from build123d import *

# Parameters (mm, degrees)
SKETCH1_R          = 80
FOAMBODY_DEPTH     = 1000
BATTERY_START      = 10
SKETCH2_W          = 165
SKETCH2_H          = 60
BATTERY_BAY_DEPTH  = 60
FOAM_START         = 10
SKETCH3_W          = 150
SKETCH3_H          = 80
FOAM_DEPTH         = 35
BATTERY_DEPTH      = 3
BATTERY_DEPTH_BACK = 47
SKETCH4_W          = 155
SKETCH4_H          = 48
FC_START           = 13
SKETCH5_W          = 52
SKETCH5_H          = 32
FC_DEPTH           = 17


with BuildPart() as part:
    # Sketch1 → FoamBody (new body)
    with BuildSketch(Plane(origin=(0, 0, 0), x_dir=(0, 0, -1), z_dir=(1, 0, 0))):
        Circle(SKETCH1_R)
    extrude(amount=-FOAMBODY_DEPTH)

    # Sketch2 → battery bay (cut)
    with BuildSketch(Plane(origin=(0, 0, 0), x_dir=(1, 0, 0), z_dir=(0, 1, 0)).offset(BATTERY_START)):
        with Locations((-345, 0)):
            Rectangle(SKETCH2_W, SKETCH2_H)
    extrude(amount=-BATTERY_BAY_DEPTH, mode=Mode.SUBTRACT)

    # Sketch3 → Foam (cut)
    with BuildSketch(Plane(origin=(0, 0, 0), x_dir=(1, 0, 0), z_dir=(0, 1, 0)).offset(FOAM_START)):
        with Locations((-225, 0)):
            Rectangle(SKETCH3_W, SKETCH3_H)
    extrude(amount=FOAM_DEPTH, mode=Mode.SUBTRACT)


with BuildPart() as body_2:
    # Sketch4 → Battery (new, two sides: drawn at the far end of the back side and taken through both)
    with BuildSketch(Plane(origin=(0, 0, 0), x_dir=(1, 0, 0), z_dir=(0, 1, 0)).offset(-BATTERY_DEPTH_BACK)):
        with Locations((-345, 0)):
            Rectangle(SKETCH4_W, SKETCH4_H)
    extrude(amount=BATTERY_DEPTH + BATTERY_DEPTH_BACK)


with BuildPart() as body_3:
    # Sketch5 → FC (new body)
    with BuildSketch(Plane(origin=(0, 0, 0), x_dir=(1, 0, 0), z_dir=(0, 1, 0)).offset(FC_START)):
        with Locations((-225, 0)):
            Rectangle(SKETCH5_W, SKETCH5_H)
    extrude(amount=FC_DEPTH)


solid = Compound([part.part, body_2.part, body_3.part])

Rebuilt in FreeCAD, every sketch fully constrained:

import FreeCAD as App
import Part
import Sketcher

V = App.Vector
Q = App.Units.Quantity

doc = App.newDocument("Part")
body = doc.addObject("PartDesign::Body", "Body")

# Sketch on YZ plane
sketch1 = body.newObject("Sketcher::SketchObject", "Sketch")
sketch1.AttachmentSupport = (doc.getObject("YZ_Plane"), [""])
sketch1.MapMode = "FlatFace"
sketch1.addGeometry(Part.Circle(V(0, 0, 0), V(0, 0, 1), 80), False)
sketch1.addConstraint(Sketcher.Constraint("Coincident", 0, 3, -1, 1))
sketch1.addConstraint(Sketcher.Constraint("Diameter", 0, Q("160 mm")))
pad1 = body.newObject("PartDesign::Pad", "Pad")
pad1.Profile = sketch1
pad1.Length = 1000
pad1.Reversed = True

# Sketch on XZ plane
sketch2 = body.newObject("Sketcher::SketchObject", "Sketch001")
sketch2.AttachmentSupport = (doc.getObject("XZ_Plane"), [""])
sketch2.MapMode = "FlatFace"
sketch2.AttachmentOffset = App.Placement(V(0, 0, -10), App.Rotation())
sketch2.addGeometry(Part.LineSegment(V(-427.5, -30, 0), V(-427.5, 30, 0)), False)
sketch2.addGeometry(Part.LineSegment(V(-427.5, 30, 0), V(-262.5, 30, 0)), False)
sketch2.addGeometry(Part.LineSegment(V(-262.5, 30, 0), V(-262.5, -30, 0)), False)
sketch2.addGeometry(Part.LineSegment(V(-262.5, -30, 0), V(-427.5, -30, 0)), False)
sketch2.addConstraint(Sketcher.Constraint("Coincident", 0, 2, 1, 1))
sketch2.addConstraint(Sketcher.Constraint("Coincident", 1, 2, 2, 1))
sketch2.addConstraint(Sketcher.Constraint("Coincident", 2, 2, 3, 1))
sketch2.addConstraint(Sketcher.Constraint("Coincident", 3, 2, 0, 1))
sketch2.addConstraint(Sketcher.Constraint("Vertical", 0))
sketch2.addConstraint(Sketcher.Constraint("Horizontal", 1))
sketch2.addConstraint(Sketcher.Constraint("Vertical", 2))
sketch2.addConstraint(Sketcher.Constraint("Horizontal", 3))
sketch2.addConstraint(Sketcher.Constraint("DistanceX", 1, 1, 1, 2, Q("165 mm")))
sketch2.addConstraint(Sketcher.Constraint("DistanceY", 0, 1, 0, 2, Q("60 mm")))
sketch2.addConstraint(Sketcher.Constraint("DistanceY", -1, 1, 0, 2, Q("30 mm")))
sketch2.addConstraint(Sketcher.Constraint("DistanceX", 0, 2, -1, 1, Q("427.5 mm")))
pocket1 = body.newObject("PartDesign::Pocket", "Pocket")
pocket1.Profile = sketch2
pocket1.Length = 60
pocket1.Reversed = True

# Sketch on XZ plane
sketch3 = body.newObject("Sketcher::SketchObject", "Sketch002")
sketch3.AttachmentSupport = (doc.getObject("XZ_Plane"), [""])
sketch3.MapMode = "FlatFace"
sketch3.AttachmentOffset = App.Placement(V(0, 0, -10), App.Rotation())
sketch3.addGeometry(Part.LineSegment(V(-300, -40, 0), V(-300, 40, 0)), False)
sketch3.addGeometry(Part.LineSegment(V(-300, 40, 0), V(-150, 40, 0)), False)
sketch3.addGeometry(Part.LineSegment(V(-150, 40, 0), V(-150, -40, 0)), False)
sketch3.addGeometry(Part.LineSegment(V(-150, -40, 0), V(-300, -40, 0)), False)
sketch3.addConstraint(Sketcher.Constraint("Coincident", 0, 2, 1, 1))
sketch3.addConstraint(Sketcher.Constraint("Coincident", 1, 2, 2, 1))
sketch3.addConstraint(Sketcher.Constraint("Coincident", 2, 2, 3, 1))
sketch3.addConstraint(Sketcher.Constraint("Coincident", 3, 2, 0, 1))
sketch3.addConstraint(Sketcher.Constraint("Vertical", 0))
sketch3.addConstraint(Sketcher.Constraint("Horizontal", 1))
sketch3.addConstraint(Sketcher.Constraint("Vertical", 2))
sketch3.addConstraint(Sketcher.Constraint("Horizontal", 3))
sketch3.addConstraint(Sketcher.Constraint("DistanceX", 1, 1, 1, 2, Q("150 mm")))
sketch3.addConstraint(Sketcher.Constraint("DistanceY", 0, 1, 0, 2, Q("80 mm")))
sketch3.addConstraint(Sketcher.Constraint("DistanceX", 0, 2, -1, 1, Q("300 mm")))
sketch3.addConstraint(Sketcher.Constraint("DistanceY", -1, 1, 0, 2, Q("40 mm")))
pocket2 = body.newObject("PartDesign::Pocket", "Pocket001")
pocket2.Profile = sketch3
pocket2.Length = 35
body2 = doc.addObject("PartDesign::Body", "Body001")

# Sketch on XZ plane
sketch4 = body2.newObject("Sketcher::SketchObject", "Sketch003")
sketch4.AttachmentSupport = (doc.getObject("XZ_Plane001"), [""])
sketch4.MapMode = "FlatFace"
sketch4.addGeometry(Part.LineSegment(V(-422.5, -24, 0), V(-422.5, 24, 0)), False)
sketch4.addGeometry(Part.LineSegment(V(-422.5, 24, 0), V(-267.5, 24, 0)), False)
sketch4.addGeometry(Part.LineSegment(V(-267.5, 24, 0), V(-267.5, -24, 0)), False)
sketch4.addGeometry(Part.LineSegment(V(-267.5, -24, 0), V(-422.5, -24, 0)), False)
sketch4.addConstraint(Sketcher.Constraint("Coincident", 0, 2, 1, 1))
sketch4.addConstraint(Sketcher.Constraint("Coincident", 1, 2, 2, 1))
sketch4.addConstraint(Sketcher.Constraint("Coincident", 2, 2, 3, 1))
sketch4.addConstraint(Sketcher.Constraint("Coincident", 3, 2, 0, 1))
sketch4.addConstraint(Sketcher.Constraint("Vertical", 0))
sketch4.addConstraint(Sketcher.Constraint("Horizontal", 1))
sketch4.addConstraint(Sketcher.Constraint("Vertical", 2))
sketch4.addConstraint(Sketcher.Constraint("Horizontal", 3))
sketch4.addConstraint(Sketcher.Constraint("DistanceX", 1, 1, 1, 2, Q("155 mm")))
sketch4.addConstraint(Sketcher.Constraint("DistanceY", 0, 1, 0, 2, Q("48 mm")))
sketch4.addConstraint(Sketcher.Constraint("DistanceY", -1, 1, 0, 2, Q("24 mm")))
sketch4.addConstraint(Sketcher.Constraint("DistanceX", 0, 2, -1, 1, Q("422.5 mm")))
pad2 = body2.newObject("PartDesign::Pad", "Pad001")
pad2.Profile = sketch4
pad2.Type = "TwoLengths"
pad2.Length = 3
pad2.Length2 = 47
pad2.Reversed = True
body3 = doc.addObject("PartDesign::Body", "Body002")

# Sketch on XZ plane
sketch5 = body3.newObject("Sketcher::SketchObject", "Sketch004")
sketch5.AttachmentSupport = (doc.getObject("XZ_Plane002"), [""])
sketch5.MapMode = "FlatFace"
sketch5.AttachmentOffset = App.Placement(V(0, 0, -13), App.Rotation())
sketch5.addGeometry(Part.LineSegment(V(-251, -16, 0), V(-251, 16, 0)), False)
sketch5.addGeometry(Part.LineSegment(V(-251, 16, 0), V(-199, 16, 0)), False)
sketch5.addGeometry(Part.LineSegment(V(-199, 16, 0), V(-199, -16, 0)), False)
sketch5.addGeometry(Part.LineSegment(V(-199, -16, 0), V(-251, -16, 0)), False)
sketch5.addConstraint(Sketcher.Constraint("Coincident", 0, 2, 1, 1))
sketch5.addConstraint(Sketcher.Constraint("Coincident", 1, 2, 2, 1))
sketch5.addConstraint(Sketcher.Constraint("Coincident", 2, 2, 3, 1))
sketch5.addConstraint(Sketcher.Constraint("Coincident", 3, 2, 0, 1))
sketch5.addConstraint(Sketcher.Constraint("Vertical", 0))
sketch5.addConstraint(Sketcher.Constraint("Horizontal", 1))
sketch5.addConstraint(Sketcher.Constraint("Vertical", 2))
sketch5.addConstraint(Sketcher.Constraint("Horizontal", 3))
sketch5.addConstraint(Sketcher.Constraint("DistanceX", 1, 1, 1, 2, Q("52 mm")))
sketch5.addConstraint(Sketcher.Constraint("DistanceY", 0, 1, 0, 2, Q("32 mm")))
sketch5.addConstraint(Sketcher.Constraint("DistanceX", 0, 2, -1, 1, Q("251 mm")))
sketch5.addConstraint(Sketcher.Constraint("DistanceY", -1, 1, 0, 2, Q("16 mm")))
pad3 = body3.newObject("PartDesign::Pad", "Pad002")
pad3.Profile = sketch5
pad3.Length = 17
pad3.Reversed = True

doc.recompute()
